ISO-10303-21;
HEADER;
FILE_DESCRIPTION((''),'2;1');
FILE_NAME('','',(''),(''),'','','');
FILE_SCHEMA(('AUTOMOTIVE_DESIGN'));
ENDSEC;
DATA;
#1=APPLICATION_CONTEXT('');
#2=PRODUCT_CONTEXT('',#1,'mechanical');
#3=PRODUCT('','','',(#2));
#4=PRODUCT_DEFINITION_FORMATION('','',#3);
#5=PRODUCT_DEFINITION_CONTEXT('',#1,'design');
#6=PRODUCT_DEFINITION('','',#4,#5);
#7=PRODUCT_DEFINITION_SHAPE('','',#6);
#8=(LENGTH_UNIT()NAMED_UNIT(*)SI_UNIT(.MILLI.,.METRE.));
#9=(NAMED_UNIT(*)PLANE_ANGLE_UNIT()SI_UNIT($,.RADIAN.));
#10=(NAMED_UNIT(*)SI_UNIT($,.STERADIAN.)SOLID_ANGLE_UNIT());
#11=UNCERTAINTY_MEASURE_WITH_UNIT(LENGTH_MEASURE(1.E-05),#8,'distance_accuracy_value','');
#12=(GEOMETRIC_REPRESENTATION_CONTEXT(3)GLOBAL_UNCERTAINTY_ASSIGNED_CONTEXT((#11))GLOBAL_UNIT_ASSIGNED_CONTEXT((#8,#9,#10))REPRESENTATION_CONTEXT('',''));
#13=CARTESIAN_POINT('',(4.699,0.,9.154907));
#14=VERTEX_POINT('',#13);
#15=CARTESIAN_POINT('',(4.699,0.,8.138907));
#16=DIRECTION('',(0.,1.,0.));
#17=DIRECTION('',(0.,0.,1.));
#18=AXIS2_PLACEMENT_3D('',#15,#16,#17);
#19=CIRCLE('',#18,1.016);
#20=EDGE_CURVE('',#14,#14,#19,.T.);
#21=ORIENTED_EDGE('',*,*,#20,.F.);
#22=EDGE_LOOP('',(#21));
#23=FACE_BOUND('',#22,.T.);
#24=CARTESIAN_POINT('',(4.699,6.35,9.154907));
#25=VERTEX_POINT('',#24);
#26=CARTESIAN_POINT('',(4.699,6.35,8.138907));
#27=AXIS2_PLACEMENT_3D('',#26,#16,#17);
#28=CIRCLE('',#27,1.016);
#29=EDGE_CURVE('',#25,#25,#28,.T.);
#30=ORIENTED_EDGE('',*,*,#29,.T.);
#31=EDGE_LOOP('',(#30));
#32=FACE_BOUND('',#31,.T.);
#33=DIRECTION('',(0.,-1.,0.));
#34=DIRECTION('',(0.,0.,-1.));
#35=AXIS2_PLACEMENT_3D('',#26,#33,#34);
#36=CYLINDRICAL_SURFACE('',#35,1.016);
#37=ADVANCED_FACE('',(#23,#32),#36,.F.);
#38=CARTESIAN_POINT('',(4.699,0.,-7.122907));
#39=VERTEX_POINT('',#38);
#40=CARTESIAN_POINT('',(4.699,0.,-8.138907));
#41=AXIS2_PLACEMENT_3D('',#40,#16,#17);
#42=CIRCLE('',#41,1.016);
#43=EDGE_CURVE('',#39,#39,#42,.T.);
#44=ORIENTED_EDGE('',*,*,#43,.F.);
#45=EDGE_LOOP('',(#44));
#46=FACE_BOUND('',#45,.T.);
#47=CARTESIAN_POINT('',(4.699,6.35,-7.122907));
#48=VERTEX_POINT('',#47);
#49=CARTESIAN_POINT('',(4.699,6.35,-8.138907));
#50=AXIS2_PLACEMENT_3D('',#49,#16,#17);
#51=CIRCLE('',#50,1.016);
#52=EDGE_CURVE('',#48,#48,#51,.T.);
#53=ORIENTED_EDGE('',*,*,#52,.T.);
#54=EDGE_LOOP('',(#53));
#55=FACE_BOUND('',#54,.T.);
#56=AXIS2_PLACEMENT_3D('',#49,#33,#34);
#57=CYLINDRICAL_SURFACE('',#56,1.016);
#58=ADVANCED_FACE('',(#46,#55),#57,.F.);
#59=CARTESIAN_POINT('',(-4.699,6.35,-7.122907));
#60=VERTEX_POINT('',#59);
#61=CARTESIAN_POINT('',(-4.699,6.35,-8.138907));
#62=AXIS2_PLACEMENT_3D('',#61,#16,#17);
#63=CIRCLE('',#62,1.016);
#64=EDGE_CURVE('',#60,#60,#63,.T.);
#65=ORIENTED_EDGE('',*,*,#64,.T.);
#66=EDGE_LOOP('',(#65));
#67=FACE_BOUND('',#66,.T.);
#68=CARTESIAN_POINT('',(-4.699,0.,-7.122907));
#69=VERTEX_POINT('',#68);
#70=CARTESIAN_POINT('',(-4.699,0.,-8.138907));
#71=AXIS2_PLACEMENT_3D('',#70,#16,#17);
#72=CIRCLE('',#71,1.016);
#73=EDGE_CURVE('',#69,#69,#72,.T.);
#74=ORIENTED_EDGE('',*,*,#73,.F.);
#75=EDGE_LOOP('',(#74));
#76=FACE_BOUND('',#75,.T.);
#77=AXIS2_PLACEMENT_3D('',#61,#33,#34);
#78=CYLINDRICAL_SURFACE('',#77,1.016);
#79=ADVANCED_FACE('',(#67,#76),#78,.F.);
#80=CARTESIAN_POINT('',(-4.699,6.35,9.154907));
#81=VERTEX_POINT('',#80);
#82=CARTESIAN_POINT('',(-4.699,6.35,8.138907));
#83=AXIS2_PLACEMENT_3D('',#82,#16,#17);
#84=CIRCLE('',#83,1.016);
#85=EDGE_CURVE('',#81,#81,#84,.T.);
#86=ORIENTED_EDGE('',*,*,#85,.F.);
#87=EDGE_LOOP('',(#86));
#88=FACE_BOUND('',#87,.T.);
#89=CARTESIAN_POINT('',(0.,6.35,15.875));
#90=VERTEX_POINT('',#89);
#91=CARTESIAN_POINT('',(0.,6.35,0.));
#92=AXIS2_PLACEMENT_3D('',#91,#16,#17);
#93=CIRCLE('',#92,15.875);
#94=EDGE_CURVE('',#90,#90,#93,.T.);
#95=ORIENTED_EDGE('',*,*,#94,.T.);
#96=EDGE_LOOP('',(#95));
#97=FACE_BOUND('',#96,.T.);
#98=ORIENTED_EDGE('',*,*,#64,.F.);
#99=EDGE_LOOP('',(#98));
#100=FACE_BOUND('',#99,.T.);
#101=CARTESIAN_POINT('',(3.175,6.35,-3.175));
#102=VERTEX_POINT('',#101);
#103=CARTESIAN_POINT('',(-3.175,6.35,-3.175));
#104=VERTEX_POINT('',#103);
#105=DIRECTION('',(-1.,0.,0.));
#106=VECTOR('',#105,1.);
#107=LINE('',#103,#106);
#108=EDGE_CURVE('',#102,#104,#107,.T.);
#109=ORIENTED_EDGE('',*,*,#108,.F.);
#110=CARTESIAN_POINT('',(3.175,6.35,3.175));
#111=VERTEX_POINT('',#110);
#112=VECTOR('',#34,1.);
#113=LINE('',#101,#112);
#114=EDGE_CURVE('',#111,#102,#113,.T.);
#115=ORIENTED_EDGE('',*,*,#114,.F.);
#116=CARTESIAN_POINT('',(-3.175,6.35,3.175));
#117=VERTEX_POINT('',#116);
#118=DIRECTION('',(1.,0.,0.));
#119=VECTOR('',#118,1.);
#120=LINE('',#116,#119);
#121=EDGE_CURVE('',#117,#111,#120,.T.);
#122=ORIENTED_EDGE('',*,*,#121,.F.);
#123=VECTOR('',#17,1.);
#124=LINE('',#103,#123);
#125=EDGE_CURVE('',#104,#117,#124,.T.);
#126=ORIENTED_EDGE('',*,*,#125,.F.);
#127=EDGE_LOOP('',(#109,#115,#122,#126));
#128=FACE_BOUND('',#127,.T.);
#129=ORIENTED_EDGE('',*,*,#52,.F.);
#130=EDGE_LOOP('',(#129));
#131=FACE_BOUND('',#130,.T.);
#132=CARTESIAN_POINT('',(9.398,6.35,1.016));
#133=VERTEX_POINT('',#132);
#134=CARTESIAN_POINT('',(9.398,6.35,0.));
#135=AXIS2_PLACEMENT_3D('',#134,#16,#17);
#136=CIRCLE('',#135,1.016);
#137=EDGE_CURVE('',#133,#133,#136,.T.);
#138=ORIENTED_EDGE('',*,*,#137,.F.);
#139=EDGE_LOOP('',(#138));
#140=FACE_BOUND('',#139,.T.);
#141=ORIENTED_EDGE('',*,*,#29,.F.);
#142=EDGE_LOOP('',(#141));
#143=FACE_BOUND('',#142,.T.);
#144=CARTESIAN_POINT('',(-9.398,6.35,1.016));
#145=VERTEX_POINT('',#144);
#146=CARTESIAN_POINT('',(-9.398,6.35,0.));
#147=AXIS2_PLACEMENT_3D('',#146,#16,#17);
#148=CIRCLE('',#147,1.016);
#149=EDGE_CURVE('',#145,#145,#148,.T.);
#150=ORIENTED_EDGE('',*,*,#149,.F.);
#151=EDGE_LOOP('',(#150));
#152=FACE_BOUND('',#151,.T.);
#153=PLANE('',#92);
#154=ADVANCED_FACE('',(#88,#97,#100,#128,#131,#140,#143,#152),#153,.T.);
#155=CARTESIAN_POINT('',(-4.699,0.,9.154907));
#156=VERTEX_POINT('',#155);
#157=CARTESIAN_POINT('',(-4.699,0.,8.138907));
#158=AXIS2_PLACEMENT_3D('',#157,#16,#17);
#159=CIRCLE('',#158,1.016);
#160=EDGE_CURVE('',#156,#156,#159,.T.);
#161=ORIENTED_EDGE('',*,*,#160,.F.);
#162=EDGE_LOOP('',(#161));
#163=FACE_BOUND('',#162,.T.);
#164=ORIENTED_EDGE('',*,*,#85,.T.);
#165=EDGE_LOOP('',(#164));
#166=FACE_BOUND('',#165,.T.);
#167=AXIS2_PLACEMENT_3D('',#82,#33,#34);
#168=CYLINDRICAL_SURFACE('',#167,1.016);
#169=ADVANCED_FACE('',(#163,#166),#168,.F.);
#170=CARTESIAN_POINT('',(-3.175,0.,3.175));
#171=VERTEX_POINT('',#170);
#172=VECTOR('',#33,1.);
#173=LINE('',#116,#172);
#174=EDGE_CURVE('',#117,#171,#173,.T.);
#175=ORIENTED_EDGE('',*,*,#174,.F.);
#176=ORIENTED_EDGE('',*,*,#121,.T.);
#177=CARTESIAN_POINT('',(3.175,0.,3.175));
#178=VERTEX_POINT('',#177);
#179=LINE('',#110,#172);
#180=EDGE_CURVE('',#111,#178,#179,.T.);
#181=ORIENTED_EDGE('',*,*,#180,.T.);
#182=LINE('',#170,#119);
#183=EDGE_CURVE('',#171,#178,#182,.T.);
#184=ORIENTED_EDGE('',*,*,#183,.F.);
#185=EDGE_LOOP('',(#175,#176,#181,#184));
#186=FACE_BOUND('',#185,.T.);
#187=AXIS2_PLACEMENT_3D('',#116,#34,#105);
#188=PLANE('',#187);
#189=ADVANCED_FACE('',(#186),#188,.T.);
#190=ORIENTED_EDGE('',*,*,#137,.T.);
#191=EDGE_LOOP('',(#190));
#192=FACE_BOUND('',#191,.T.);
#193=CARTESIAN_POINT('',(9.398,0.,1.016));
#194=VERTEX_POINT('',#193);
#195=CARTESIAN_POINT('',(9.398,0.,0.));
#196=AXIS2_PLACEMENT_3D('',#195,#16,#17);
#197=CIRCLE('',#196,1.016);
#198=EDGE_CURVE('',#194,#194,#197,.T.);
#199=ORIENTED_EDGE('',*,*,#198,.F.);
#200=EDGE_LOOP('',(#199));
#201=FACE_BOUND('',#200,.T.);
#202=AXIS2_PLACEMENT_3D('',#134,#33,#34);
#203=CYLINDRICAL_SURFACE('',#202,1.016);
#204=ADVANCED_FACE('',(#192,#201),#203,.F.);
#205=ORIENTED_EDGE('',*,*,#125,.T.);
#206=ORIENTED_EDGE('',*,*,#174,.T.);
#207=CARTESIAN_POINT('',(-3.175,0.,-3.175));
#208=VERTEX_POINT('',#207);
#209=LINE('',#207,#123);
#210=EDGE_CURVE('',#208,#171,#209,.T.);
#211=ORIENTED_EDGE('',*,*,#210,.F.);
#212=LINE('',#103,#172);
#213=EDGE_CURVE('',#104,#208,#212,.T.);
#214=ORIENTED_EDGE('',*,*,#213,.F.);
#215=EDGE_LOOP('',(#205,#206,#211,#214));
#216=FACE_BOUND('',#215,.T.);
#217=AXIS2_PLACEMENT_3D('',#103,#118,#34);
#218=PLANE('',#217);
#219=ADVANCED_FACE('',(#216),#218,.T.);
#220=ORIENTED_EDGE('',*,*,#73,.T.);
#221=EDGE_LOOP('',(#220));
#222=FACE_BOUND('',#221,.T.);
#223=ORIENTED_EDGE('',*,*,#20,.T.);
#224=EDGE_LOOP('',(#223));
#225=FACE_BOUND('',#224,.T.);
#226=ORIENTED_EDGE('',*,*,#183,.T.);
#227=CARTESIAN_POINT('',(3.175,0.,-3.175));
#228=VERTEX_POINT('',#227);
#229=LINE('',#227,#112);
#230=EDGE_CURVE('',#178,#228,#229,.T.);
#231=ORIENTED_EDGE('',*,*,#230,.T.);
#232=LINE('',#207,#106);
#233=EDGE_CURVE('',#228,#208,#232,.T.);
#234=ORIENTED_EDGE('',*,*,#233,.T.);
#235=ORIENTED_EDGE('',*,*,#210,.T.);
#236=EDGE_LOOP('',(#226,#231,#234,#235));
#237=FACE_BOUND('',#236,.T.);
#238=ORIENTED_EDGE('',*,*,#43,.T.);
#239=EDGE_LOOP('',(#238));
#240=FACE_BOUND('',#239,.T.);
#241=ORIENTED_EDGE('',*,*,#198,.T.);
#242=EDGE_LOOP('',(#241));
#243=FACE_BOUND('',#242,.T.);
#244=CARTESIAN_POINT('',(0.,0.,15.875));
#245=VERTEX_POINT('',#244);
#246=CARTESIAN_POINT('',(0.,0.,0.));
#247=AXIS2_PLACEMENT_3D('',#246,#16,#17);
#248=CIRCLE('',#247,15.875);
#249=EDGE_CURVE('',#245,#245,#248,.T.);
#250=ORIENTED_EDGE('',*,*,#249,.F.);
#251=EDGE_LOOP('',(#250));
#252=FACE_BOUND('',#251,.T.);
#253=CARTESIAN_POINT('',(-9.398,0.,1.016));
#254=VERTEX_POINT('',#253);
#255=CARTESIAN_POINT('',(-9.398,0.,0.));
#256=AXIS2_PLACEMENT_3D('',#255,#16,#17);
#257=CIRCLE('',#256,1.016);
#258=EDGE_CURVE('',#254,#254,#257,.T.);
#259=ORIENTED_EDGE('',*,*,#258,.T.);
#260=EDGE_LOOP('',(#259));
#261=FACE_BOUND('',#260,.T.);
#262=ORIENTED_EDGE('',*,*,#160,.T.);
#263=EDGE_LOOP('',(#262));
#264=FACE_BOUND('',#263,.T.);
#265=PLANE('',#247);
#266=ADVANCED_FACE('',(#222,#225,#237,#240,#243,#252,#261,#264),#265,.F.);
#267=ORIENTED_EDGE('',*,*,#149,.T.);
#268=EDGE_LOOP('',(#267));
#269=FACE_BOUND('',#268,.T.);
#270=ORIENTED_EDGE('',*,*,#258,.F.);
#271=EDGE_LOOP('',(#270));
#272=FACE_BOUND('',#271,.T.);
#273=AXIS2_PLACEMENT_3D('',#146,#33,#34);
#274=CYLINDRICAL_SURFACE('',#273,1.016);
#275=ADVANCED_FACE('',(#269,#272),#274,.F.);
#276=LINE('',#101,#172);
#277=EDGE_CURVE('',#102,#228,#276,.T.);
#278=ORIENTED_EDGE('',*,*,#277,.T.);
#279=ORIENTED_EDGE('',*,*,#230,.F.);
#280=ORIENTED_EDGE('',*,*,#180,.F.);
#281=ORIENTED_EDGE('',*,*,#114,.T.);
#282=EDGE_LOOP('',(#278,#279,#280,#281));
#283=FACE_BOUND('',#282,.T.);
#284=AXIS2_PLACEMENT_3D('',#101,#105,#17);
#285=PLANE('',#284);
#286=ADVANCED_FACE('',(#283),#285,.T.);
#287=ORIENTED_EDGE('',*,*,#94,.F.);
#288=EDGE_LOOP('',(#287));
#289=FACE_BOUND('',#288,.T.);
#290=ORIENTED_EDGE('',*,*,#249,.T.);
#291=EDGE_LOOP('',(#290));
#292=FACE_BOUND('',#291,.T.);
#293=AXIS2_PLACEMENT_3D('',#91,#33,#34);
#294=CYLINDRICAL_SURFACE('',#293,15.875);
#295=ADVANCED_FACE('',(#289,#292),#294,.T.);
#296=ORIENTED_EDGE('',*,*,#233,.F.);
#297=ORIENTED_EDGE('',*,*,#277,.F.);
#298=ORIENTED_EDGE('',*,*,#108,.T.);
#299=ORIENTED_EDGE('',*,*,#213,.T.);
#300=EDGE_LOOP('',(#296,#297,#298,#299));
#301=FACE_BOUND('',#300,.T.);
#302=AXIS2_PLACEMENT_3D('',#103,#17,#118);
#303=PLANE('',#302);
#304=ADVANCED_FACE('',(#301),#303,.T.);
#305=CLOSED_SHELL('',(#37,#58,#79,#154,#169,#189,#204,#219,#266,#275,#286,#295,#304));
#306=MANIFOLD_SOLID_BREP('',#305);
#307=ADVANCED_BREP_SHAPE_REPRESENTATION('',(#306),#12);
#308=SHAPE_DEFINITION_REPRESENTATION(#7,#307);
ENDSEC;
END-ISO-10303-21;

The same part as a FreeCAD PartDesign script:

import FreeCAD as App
import Part
import Sketcher
Q = App.Units.Quantity

doc = App.newDocument("Part")
body = doc.addObject("PartDesign::Body", "Body")

sketch1 = body.newObject("Sketcher::SketchObject", "Sketch")
sketch1.AttachmentSupport = (doc.getObject("XZ_Plane"), [""])
sketch1.MapMode = "FlatFace"
sketch1.addGeometry([
    Part.Circle(App.Vector(0, 0, 0), App.Vector(0, 0, 1), 15.9),
    Part.Circle(App.Vector(-4.7, -8.1, 0), App.Vector(0, 0, 1), 1),
    Part.Circle(App.Vector(-9.4, 0, 0), App.Vector(0, 0, 1), 1),
    Part.LineSegment(App.Vector(3.2, 3.2, 0), App.Vector(-3.2, 3.2, 0)),
    Part.LineSegment(App.Vector(-3.2, 3.2, 0), App.Vector(-3.2, -3.2, 0)),
    Part.LineSegment(App.Vector(-3.2, -3.2, 0), App.Vector(3.2, -3.2, 0)),
    Part.LineSegment(App.Vector(3.2, -3.2, 0), App.Vector(3.2, 3.2, 0)),
    Part.Circle(App.Vector(-4.7, 8.1, 0), App.Vector(0, 0, 1), 1),
    Part.Circle(App.Vector(4.7, -8.1, 0), App.Vector(0, 0, 1), 1),
    Part.Circle(App.Vector(9.4, 0, 0), App.Vector(0, 0, 1), 1),
    Part.Circle(App.Vector(4.7, 8.1, 0), App.Vector(0, 0, 1), 1),
], False)
sketch1.addConstraint([
    Sketcher.Constraint("Coincident", 3, 2, 4, 1),
    Sketcher.Constraint("Coincident", 4, 2, 5, 1),
    Sketcher.Constraint("Coincident", 5, 2, 6, 1),
    Sketcher.Constraint("Coincident", 6, 2, 3, 1),
    Sketcher.Constraint("Horizontal", 3),
    Sketcher.Constraint("Vertical", 4),
    Sketcher.Constraint("Horizontal", 5),
    Sketcher.Constraint("Vertical", 6),
    Sketcher.Constraint("Coincident", 0, 3, -1, 1),
    Sketcher.Constraint("Equal", 1, 2),
    Sketcher.Constraint("Equal", 2, 7),
    Sketcher.Constraint("Equal", 7, 8),
    Sketcher.Constraint("Equal", 8, 9),
    Sketcher.Constraint("Equal", 9, 10),
    Sketcher.Constraint("Symmetric", 7, 3, 8, 3, -1, 1),
    Sketcher.Constraint("Symmetric", 2, 3, 9, 3, -1, 1),
    Sketcher.Constraint("Symmetric", 1, 3, 10, 3, -1, 1),
    Sketcher.Constraint("Symmetric", 3, 2, 5, 2, -1, 1),
    Sketcher.Constraint("Symmetric", 1, 3, 8, 3, -2),
    Sketcher.Constraint("PointOnObject", 2, 3, -1),
    Sketcher.Constraint("Equal", 5, 4),
    Sketcher.Constraint("Diameter", 0, Q("1.25 in")),
    Sketcher.Constraint("Diameter", 1, Q("0.08 in")),
    Sketcher.Constraint("DistanceX", 3, 2, 3, 1, Q("0.25 in")),
    Sketcher.Constraint("DistanceX", 2, 3, -1, 1, Q("0.37 in")),
    Sketcher.Constraint("DistanceX", 1, 3, 8, 3, Q("0.37 in")),
    Sketcher.Constraint("DistanceY", 1, 3, -1, 1, Q("8.138907 mm")),
])
pad1 = body.newObject("PartDesign::Pad", "Pad")
pad1.Profile = sketch1
pad1.Length = Q("0.25 in")
pad1.Reversed = True

doc.recompute()
